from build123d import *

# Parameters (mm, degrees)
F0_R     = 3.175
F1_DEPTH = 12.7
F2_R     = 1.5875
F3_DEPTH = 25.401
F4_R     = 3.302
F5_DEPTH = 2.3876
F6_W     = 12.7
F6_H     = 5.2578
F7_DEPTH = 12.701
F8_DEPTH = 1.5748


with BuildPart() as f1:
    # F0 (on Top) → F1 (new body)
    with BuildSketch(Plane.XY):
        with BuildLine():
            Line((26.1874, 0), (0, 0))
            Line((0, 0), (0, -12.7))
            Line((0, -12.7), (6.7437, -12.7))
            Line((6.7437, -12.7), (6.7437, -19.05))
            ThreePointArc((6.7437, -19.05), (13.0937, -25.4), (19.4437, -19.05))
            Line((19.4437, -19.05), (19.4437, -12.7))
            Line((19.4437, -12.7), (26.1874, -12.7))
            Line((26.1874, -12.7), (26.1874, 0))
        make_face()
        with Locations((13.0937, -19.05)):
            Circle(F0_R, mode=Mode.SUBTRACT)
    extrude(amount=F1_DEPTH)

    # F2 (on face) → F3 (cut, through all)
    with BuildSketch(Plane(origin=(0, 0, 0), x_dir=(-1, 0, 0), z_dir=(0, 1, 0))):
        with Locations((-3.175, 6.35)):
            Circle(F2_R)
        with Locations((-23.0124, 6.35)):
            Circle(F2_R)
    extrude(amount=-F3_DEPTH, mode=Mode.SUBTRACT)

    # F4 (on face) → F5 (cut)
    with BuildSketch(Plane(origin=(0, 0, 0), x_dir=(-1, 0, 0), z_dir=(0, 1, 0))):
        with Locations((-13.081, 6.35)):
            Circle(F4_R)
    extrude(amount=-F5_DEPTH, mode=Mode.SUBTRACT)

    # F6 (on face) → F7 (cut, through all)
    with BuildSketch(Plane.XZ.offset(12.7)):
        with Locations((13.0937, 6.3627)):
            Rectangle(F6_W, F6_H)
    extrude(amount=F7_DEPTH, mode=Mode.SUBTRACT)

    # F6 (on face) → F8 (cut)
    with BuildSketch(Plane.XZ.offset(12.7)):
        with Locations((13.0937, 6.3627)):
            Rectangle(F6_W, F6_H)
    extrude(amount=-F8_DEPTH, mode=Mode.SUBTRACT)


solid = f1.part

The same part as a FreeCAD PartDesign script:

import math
import FreeCAD as App
import Part
import Sketcher

V = App.Vector
Q = App.Units.Quantity


def add_polygon(sketch, points):
    """Adds a closed chain of lines whose ends are joined by coincident constraints."""
    first, n = sketch.GeometryCount, len(points)
    for a, b in zip(points, points[1:] + points[:1]):
        sketch.addGeometry(Part.LineSegment(App.Vector(*a, 0), App.Vector(*b, 0)), False)
    for i in range(n):
        sketch.addConstraint(Sketcher.Constraint("Coincident", first + i, 2, first + (i + 1) % n, 1))

doc = App.newDocument("Part")
params = doc.addObject("Spreadsheet::Sheet", "Params")
for row, (alias, value) in enumerate([
    ("sketch1_diameter", "0.25 in"),
    ("sketch1_radius", "0.25 in"),
    ("sketch1_height", "0.5 in"),
    ("sketch1_height2", "0.25 in"),
    ("sketch1_width", "1.031 in"),
    ("pad1_length", "0.5 in"),
    ("sketch2_diameter", "0.125 in"),
    ("sketch3_diameter", "0.26 in"),
    ("pocket2_length", "0.094 in"),
    ("sketch4_width", "0.5 in"),
    ("sketch4_height", "0.207 in"),
    ("sketch5_width", "0.5 in"),
    ("sketch5_height", "0.207 in"),
    ("pocket4_length", "0.062 in"),
], start=1):
    params.set(f"A{row}", alias)
    params.set(f"B{row}", "=" + value)
    params.setAlias(f"B{row}", alias)

body = doc.addObject("PartDesign::Body", "Body")

# Sketch on XY plane
sketch1 = body.newObject("Sketcher::SketchObject", "Sketch")
sketch1.AttachmentSupport = (doc.getObject("XY_Plane"), [""])
sketch1.MapMode = "FlatFace"
sketch1.addGeometry([
    Part.LineSegment(V(26.1874, 0, 0), V(0, 0, 0)),  # 0
    Part.LineSegment(V(0, 0, 0), V(0, -12.7, 0)),  # 1
    Part.LineSegment(V(0, -12.7, 0), V(6.7437, -12.7, 0)),  # 2
    Part.LineSegment(V(6.7437, -12.7, 0), V(6.7437, -19.05, 0)),  # 3
    Part.ArcOfCircle(Part.Circle(V(13.0937, -19.05, 0), V(0, 0, 1), 6.35), math.radians(180), math.radians(360)),  # 4
    Part.LineSegment(V(19.4437, -19.05, 0), V(19.4437, -12.7, 0)),  # 5
    Part.LineSegment(V(19.4437, -12.7, 0), V(26.1874, -12.7, 0)),  # 6
    Part.LineSegment(V(26.1874, -12.7, 0), V(26.1874, 0, 0)),  # 7
    Part.Circle(V(13.0937, -19.05, 0), V(0, 0, 1), 3.175),  # 8
], False)
sketch1.addConstraint([
    Sketcher.Constraint("Coincident", 0, 2, 1, 1),
    Sketcher.Constraint("Coincident", 1, 2, 2, 1),
    Sketcher.Constraint("Coincident", 2, 2, 3, 1),
    Sketcher.Constraint("Tangent", 3, 2, 4, 1),
    Sketcher.Constraint("Tangent", 4, 2, 5, 1),
    Sketcher.Constraint("Coincident", 5, 2, 6, 1),
    Sketcher.Constraint("Coincident", 6, 2, 7, 1),
    Sketcher.Constraint("Coincident", 7, 2, 0, 1),
    Sketcher.Constraint("Horizontal", 0),
    Sketcher.Constraint("Vertical", 1),
    Sketcher.Constraint("Horizontal", 2),
    Sketcher.Constraint("Vertical", 3),
    Sketcher.Constraint("Vertical", 5),
    Sketcher.Constraint("Horizontal", 6),
    Sketcher.Constraint("Vertical", 7),
    Sketcher.Constraint("Coincident", 0, 2, -1, 1),
    Sketcher.Constraint("Coincident", 8, 3, 4, 3),
    Sketcher.Constraint("Horizontal", 2, 2, 5, 2),
    Sketcher.Constraint("Equal", 2, 6),
    Sketcher.Constraint("Diameter", 8, Q("0.25 in")),
    Sketcher.Constraint("Radius", 4, Q("0.25 in")),
    Sketcher.Constraint("DistanceY", 1, 2, 1, 1, Q("0.5 in")),
    Sketcher.Constraint("DistanceY", 3, 2, 3, 1, Q("0.25 in")),
    Sketcher.Constraint("DistanceX", 0, 2, 0, 1, Q("1.031 in")),
])
sketch1.setExpression("Constraints[19]", "Params.sketch1_diameter")
sketch1.setExpression("Constraints[20]", "Params.sketch1_radius")
sketch1.setExpression("Constraints[21]", "Params.sketch1_height")
sketch1.setExpression("Constraints[22]", "Params.sketch1_height2")
sketch1.setExpression("Constraints[23]", "Params.sketch1_width")
pad1 = body.newObject("PartDesign::Pad", "Pad")
pad1.Profile = sketch1
pad1.setExpression("Length", "Params.pad1_length")

# Sketch on XZ plane
sketch2 = body.newObject("Sketcher::SketchObject", "Sketch001")
sketch2.AttachmentSupport = (doc.getObject("XZ_Plane"), [""])
sketch2.MapMode = "FlatFace"
sketch2.addGeometry([
    Part.Circle(V(3.175, 6.35, 0), V(0, 0, 1), 1.5875),
    Part.Circle(V(23.0124, 6.35, 0), V(0, 0, 1), 1.5875),
], False)
sketch2.addConstraint([
    Sketcher.Constraint("Equal", 0, 1),
    Sketcher.Constraint("Horizontal", 0, 3, 1, 3),
    Sketcher.Constraint("Diameter", 0, Q("0.125 in")),
    Sketcher.Constraint("DistanceY", -1, 1, 0, 3, Q("0.25 in")),
    Sketcher.Constraint("DistanceX", -1, 1, 0, 3, Q("0.125 in")),
    Sketcher.Constraint("DistanceX", -1, 1, 1, 3, Q("0.906 in")),
])
sketch2.setExpression("Constraints[2]", "Params.sketch2_diameter")
pocket1 = body.newObject("PartDesign::Pocket", "Pocket")
pocket1.Profile = sketch2
pocket1.Type = "ThroughAll"
pocket1.Reversed = True

# Sketch on XZ plane
sketch3 = body.newObject("Sketcher::SketchObject", "Sketch002")
sketch3.AttachmentSupport = (doc.getObject("XZ_Plane"), [""])
sketch3.MapMode = "FlatFace"
sketch3.addGeometry(Part.Circle(V(13.081, 6.35, 0), V(0, 0, 1), 3.302), False)
sketch3.addConstraint([
    Sketcher.Constraint("Diameter", 0, Q("0.26 in")),
    Sketcher.Constraint("DistanceY", -1, 1, 0, 3, Q("0.25 in")),
    Sketcher.Constraint("DistanceX", -1, 1, 0, 3, Q("0.515 in")),
])
sketch3.setExpression("Constraints[0]", "Params.sketch3_diameter")
pocket2 = body.newObject("PartDesign::Pocket", "Pocket001")
pocket2.Profile = sketch3
pocket2.setExpression("Length", "Params.pocket2_length")
pocket2.Reversed = True

# Sketch on XZ plane
sketch4 = body.newObject("Sketcher::SketchObject", "Sketch003")
sketch4.AttachmentSupport = (doc.getObject("XZ_Plane"), [""])
sketch4.MapMode = "FlatFace"
sketch4.AttachmentOffset = App.Placement(V(0, 0, 0.5 * 25.4), App.Rotation())
add_polygon(sketch4, [(6.7437, 8.9916), (6.7437, 3.7338), (19.4437, 3.7338), (19.4437, 8.9916)])  # lines 0-3
sketch4.addConstraint([
    Sketcher.Constraint("Vertical", 0),
    Sketcher.Constraint("Horizontal", 1),
    Sketcher.Constraint("Vertical", 2),
    Sketcher.Constraint("Horizontal", 3),
    Sketcher.Constraint("DistanceX", 1, 1, 1, 2, Q("0.5 in")),
    Sketcher.Constraint("DistanceY", 0, 2, 0, 1, Q("0.207 in")),
    Sketcher.Constraint("DistanceY", -1, 1, 0, 2, Q("0.147 in")),
    Sketcher.Constraint("DistanceX", -1, 1, 0, 2, Q("0.2655 in")),
])
sketch4.setExpression("Constraints[8]", "Params.sketch4_width")
sketch4.setExpression("Constraints[9]", "Params.sketch4_height")
pocket3 = body.newObject("PartDesign::Pocket", "Pocket002")
pocket3.Profile = sketch4
pocket3.Type = "ThroughAll"
pocket3.Reversed = True

# Sketch on XZ plane
sketch5 = body.newObject("Sketcher::SketchObject", "Sketch004")
sketch5.AttachmentSupport = (doc.getObject("XZ_Plane"), [""])
sketch5.MapMode = "FlatFace"
sketch5.AttachmentOffset = App.Placement(V(0, 0, 0.5 * 25.4), App.Rotation())
add_polygon(sketch5, [(6.7437, 8.9916), (6.7437, 3.7338), (19.4437, 3.7338), (19.4437, 8.9916)])  # lines 0-3
sketch5.addConstraint([
    Sketcher.Constraint("Vertical", 0),
    Sketcher.Constraint("Horizontal", 1),
    Sketcher.Constraint("Vertical", 2),
    Sketcher.Constraint("Horizontal", 3),
    Sketcher.Constraint("DistanceX", 1, 1, 1, 2, Q("0.5 in")),
    Sketcher.Constraint("DistanceY", 0, 2, 0, 1, Q("0.207 in")),
    Sketcher.Constraint("DistanceY", -1, 1, 0, 2, Q("0.147 in")),
    Sketcher.Constraint("DistanceX", -1, 1, 0, 2, Q("0.2655 in")),
])
sketch5.setExpression("Constraints[8]", "Params.sketch5_width")
sketch5.setExpression("Constraints[9]", "Params.sketch5_height")
pocket4 = body.newObject("PartDesign::Pocket", "Pocket003")
pocket4.Profile = sketch5
pocket4.setExpression("Length", "Params.pocket4_length")

doc.recompute()
